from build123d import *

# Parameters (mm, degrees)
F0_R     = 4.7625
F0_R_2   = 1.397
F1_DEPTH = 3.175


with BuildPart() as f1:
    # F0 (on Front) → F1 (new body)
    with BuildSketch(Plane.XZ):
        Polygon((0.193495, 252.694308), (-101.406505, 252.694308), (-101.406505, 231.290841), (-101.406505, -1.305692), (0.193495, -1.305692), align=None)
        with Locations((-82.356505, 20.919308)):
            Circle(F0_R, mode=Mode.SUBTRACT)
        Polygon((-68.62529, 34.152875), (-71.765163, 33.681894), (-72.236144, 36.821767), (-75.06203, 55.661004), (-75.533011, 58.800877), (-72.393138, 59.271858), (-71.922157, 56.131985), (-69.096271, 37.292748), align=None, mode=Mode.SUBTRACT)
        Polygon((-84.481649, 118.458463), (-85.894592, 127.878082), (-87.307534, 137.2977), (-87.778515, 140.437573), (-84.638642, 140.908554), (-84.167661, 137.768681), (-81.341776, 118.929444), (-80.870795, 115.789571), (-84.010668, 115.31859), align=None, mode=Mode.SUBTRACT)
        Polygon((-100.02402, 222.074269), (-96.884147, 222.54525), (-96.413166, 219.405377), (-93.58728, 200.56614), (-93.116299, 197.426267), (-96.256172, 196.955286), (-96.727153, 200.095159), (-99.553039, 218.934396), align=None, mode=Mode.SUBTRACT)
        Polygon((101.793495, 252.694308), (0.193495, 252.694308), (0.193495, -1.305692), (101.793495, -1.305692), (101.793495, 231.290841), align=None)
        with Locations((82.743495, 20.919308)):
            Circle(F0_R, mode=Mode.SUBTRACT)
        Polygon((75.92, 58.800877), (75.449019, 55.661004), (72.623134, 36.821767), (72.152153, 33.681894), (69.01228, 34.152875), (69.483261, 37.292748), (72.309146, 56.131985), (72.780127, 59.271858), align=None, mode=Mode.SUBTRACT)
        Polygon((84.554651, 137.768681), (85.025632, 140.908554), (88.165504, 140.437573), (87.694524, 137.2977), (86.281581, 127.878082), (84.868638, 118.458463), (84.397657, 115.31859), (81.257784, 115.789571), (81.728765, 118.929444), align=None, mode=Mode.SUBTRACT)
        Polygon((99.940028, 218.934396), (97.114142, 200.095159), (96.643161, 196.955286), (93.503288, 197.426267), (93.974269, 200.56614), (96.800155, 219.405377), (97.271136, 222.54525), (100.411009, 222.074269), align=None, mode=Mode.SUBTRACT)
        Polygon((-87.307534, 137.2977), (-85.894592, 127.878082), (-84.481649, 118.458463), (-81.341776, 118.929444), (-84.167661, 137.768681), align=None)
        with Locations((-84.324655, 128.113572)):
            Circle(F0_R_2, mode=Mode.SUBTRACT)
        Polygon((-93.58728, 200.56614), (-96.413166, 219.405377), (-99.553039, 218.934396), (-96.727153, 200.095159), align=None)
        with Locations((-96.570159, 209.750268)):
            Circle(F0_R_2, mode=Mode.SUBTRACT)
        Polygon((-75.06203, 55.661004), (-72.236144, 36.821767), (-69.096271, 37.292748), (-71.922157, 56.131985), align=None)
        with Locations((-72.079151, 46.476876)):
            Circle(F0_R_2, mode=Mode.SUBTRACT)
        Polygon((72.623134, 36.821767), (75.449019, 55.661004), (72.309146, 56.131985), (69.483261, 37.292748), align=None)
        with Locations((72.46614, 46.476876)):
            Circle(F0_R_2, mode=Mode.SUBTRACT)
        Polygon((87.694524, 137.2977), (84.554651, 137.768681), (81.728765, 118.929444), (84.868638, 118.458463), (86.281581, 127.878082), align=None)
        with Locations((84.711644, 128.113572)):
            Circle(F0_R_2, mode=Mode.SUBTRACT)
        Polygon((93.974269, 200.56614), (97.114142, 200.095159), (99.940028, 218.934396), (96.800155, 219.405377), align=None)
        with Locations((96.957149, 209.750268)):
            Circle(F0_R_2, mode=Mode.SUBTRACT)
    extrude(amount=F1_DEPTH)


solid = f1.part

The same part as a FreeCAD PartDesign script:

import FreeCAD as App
import Part
import Sketcher
from FreeCAD import Vector
Q = App.Units.Quantity


def add_polygon(sketch, points):
    """Adds a closed chain of lines whose ends are joined by coincident constraints."""
    first, n = sketch.GeometryCount, len(points)
    for a, b in zip(points, points[1:] + points[:1]):
        sketch.addGeometry(Part.LineSegment(App.Vector(*a, 0), App.Vector(*b, 0)), False)
    for i in range(n):
        sketch.addConstraint(Sketcher.Constraint("Coincident", first + i, 2, first + (i + 1) % n, 1))

doc = App.newDocument("Part")
body = doc.addObject("PartDesign::Body", "Body")

# Sketch on XZ plane
sketch1 = body.newObject("Sketcher::SketchObject", "Sketch")
sketch1.AttachmentSupport = (doc.getObject("XZ_Plane"), [""])
sketch1.MapMode = "FlatFace"
add_polygon(sketch1, [(-101.4, 252.7), (-101.4, -1.3), (101.8, -1.3), (101.8, 252.7)])  # lines 0-3
sketch1.addGeometry(Part.Circle(Vector(-82.4, 20.9, 0), Vector(0, 0, 1), 4.8), False)  # 4
add_polygon(sketch1, [(-69.1, 37.3), (-68.6, 34.2), (-71.8, 33.7), (-72.2, 36.8)])  # lines 5-8
sketch1.addGeometry(Part.Circle(Vector(-72.1, 46.5, 0), Vector(0, 0, 1), 1.4), False)  # 9
add_polygon(sketch1, [(-72.4, 59.3), (-71.9, 56.1), (-75.1, 55.7), (-75.5, 58.8)])  # lines 10-13
add_polygon(sketch1, [(-84, 115.3), (-84.5, 118.5), (-81.3, 118.9), (-80.9, 115.8)])  # lines 14-17
add_polygon(sketch1, [(69, 34.2), (69.5, 37.3), (72.6, 36.8), (72.2, 33.7)])  # lines 18-21
sketch1.addGeometry(Part.Circle(Vector(82.7, 20.9, 0), Vector(0, 0, 1), 4.8), False)  # 22
sketch1.addGeometry(Part.Circle(Vector(72.5, 46.5, 0), Vector(0, 0, 1), 1.4), False)  # 23
add_polygon(sketch1, [(72.8, 59.3), (75.9, 58.8), (75.4, 55.7), (72.3, 56.1)])  # lines 24-27
add_polygon(sketch1, [(81.3, 115.8), (81.7, 118.9), (84.9, 118.5), (84.4, 115.3)])  # lines 28-31
sketch1.addGeometry(Part.Circle(Vector(-84.3, 128.1, 0), Vector(0, 0, 1), 1.4), False)  # 32
add_polygon(sketch1, [(-87.3, 137.3), (-87.8, 140.4), (-84.6, 140.9), (-84.2, 137.8)])  # lines 33-36
add_polygon(sketch1, [(-96.3, 197), (-96.7, 200.1), (-93.6, 200.6), (-93.1, 197.4)])  # lines 37-40
sketch1.addGeometry(Part.Circle(Vector(-96.6, 209.8, 0), Vector(0, 0, 1), 1.4), False)  # 41
add_polygon(sketch1, [(-99.6, 218.9), (-100, 222.1), (-96.9, 222.5), (-96.4, 219.4)])  # lines 42-45
sketch1.addGeometry(Part.Circle(Vector(84.7, 128.1, 0), Vector(0, 0, 1), 1.4), False)  # 46
add_polygon(sketch1, [(84.6, 137.8), (85, 140.9), (88.2, 140.4), (87.7, 137.3)])  # lines 47-50
add_polygon(sketch1, [(97.1, 200.1), (96.6, 197), (93.5, 197.4), (94, 200.6)])  # lines 51-54
sketch1.addGeometry(Part.Circle(Vector(97, 209.8, 0), Vector(0, 0, 1), 1.4), False)  # 55
add_polygon(sketch1, [(100.4, 222.1), (99.9, 218.9), (96.8, 219.4), (97.3, 222.5)])  # lines 56-59
sketch1.addConstraint([
    Sketcher.Constraint("Vertical", 0),
    Sketcher.Constraint("Horizontal", 1),
    Sketcher.Constraint("Vertical", 2),
    Sketcher.Constraint("Horizontal", 3),
    Sketcher.Constraint("Equal", 4, 22),
    Sketcher.Constraint("Equal", 9, 23),
    Sketcher.Constraint("Equal", 23, 32),
    Sketcher.Constraint("Equal", 32, 41),
    Sketcher.Constraint("Equal", 41, 46),
    Sketcher.Constraint("Equal", 46, 55),
    Sketcher.Constraint("Perpendicular", 5, 6),
    Sketcher.Constraint("Perpendicular", 6, 7),
    Sketcher.Constraint("Perpendicular", 7, 8),
    Sketcher.Constraint("Perpendicular", 8, 10),
    Sketcher.Constraint("Perpendicular", 10, 11),
    Sketcher.Constraint("Perpendicular", 11, 12),
    Sketcher.Constraint("Perpendicular", 12, 13),
    Sketcher.Constraint("Perpendicular", 13, 14),
    Sketcher.Constraint("Perpendicular", 14, 15),
    Sketcher.Constraint("Perpendicular", 15, 16),
    Sketcher.Constraint("Perpendicular", 16, 17),
    Sketcher.Constraint("Perpendicular", 18, 19),
    Sketcher.Constraint("Perpendicular", 19, 20),
    Sketcher.Constraint("Perpendicular", 20, 21),
    Sketcher.Constraint("Parallel", 21, 24),
    Sketcher.Constraint("Perpendicular", 24, 25),
    Sketcher.Constraint("Perpendicular", 25, 26),
    Sketcher.Constraint("Perpendicular", 26, 27),
    Sketcher.Constraint("Parallel", 27, 28),
    Sketcher.Constraint("Perpendicular", 28, 29),
    Sketcher.Constraint("Perpendicular", 29, 30),
    Sketcher.Constraint("Perpendicular", 30, 31),
    Sketcher.Constraint("Perpendicular", 17, 33),
    Sketcher.Constraint("Perpendicular", 33, 34),
    Sketcher.Constraint("Perpendicular", 34, 35),
    Sketcher.Constraint("Perpendicular", 35, 36),
    Sketcher.Constraint("Perpendicular", 36, 37),
    Sketcher.Constraint("Perpendicular", 37, 38),
    Sketcher.Constraint("Perpendicular", 38, 39),
    Sketcher.Constraint("Perpendicular", 39, 40),
    Sketcher.Constraint("Perpendicular", 40, 42),
    Sketcher.Constraint("Perpendicular", 42, 43),
    Sketcher.Constraint("Perpendicular", 43, 44),
    Sketcher.Constraint("Perpendicular", 44, 45),
    Sketcher.Constraint("Perpendicular", 31, 47),
    Sketcher.Constraint("Perpendicular", 47, 48),
    Sketcher.Constraint("Perpendicular", 48, 49),
    Sketcher.Constraint("Perpendicular", 49, 50),
    Sketcher.Constraint("Perpendicular", 50, 51),
    Sketcher.Constraint("Perpendicular", 51, 52),
    Sketcher.Constraint("Perpendicular", 52, 53),
    Sketcher.Constraint("Perpendicular", 53, 54),
    Sketcher.Constraint("Perpendicular", 54, 56),
    Sketcher.Constraint("Perpendicular", 56, 57),
    Sketcher.Constraint("Perpendicular", 57, 58),
    Sketcher.Constraint("Perpendicular", 58, 59),
    Sketcher.Constraint("Horizontal", 4, 3, 22, 3),
    Sketcher.Constraint("Horizontal", 9, 3, 23, 3),
    Sketcher.Constraint("Horizontal", 32, 3, 46, 3),
    Sketcher.Constraint("Horizontal", 41, 3, 55, 3),
    Sketcher.Constraint("Horizontal", 8, 2, 18, 2),
    Sketcher.Constraint("Horizontal", 7, 2, 19, 2),
    Sketcher.Constraint("Horizontal", 6, 2, 20, 2),
    Sketcher.Constraint("Horizontal", 12, 2, 24, 2),
    Sketcher.Constraint("Horizontal", 11, 2, 25, 2),
    Sketcher.Constraint("Horizontal", 10, 2, 26, 2),
    Sketcher.Constraint("Horizontal", 15, 2, 28, 2),
    Sketcher.Constraint("Horizontal", 14, 2, 29, 2),
    Sketcher.Constraint("Horizontal", 17, 2, 30, 2),
    Sketcher.Constraint("Horizontal", 34, 2, 47, 2),
    Sketcher.Constraint("Horizontal", 33, 2, 48, 2),
    Sketcher.Constraint("Horizontal", 36, 2, 49, 2),
    Sketcher.Constraint("Horizontal", 40, 2, 51, 2),
    Sketcher.Constraint("Horizontal", 39, 2, 52, 2),
    Sketcher.Constraint("Horizontal", 38, 2, 53, 2),
    Sketcher.Constraint("Horizontal", 45, 2, 56, 2),
    Sketcher.Constraint("Horizontal", 44, 2, 57, 2),
    Sketcher.Constraint("Horizontal", 43, 2, 58, 2),
    Sketcher.Constraint("Equal", 5, 6),
    Sketcher.Constraint("Equal", 8, 10),
    Sketcher.Constraint("Equal", 10, 11),
    Sketcher.Constraint("Equal", 13, 14),
    Sketcher.Constraint("Equal", 14, 15),
    Sketcher.Constraint("Equal", 17, 18),
    Sketcher.Constraint("Equal", 31, 33),
    Sketcher.Constraint("Equal", 33, 34),
    Sketcher.Constraint("Equal", 36, 37),
    Sketcher.Constraint("Equal", 37, 38),
    Sketcher.Constraint("Equal", 40, 42),
    Sketcher.Constraint("Equal", 42, 43),
    Sketcher.Constraint("Diameter", 9, Q("0.11 in")),
    Sketcher.Constraint("DistanceX", 1, 1, 1, 2, Q("8 in")),
    Sketcher.Constraint("DistanceY", 0, 2, 0, 1, Q("10 in")),
    Sketcher.Constraint("Diameter", 4, Q("0.375 in")),
    Sketcher.Constraint("DistanceX", 4, 3, 22, 3, Q("6.5 in")),
    Sketcher.Constraint("DistanceX", 0, 2, 4, 3, Q("0.75 in")),
    Sketcher.Constraint("Distance", 5, Q("0.125 in")),
    Sketcher.Constraint("DistanceY", 0, 2, 4, 3, Q("0.875 in")),
    Sketcher.Constraint("DistanceX", 6, 2, -1, 1, Q("2.8254001 in")),
    Sketcher.Constraint("DistanceX", -1, 1, 24, 2, Q("75.92 mm")),
    Sketcher.Constraint("DistanceY", -1, 1, 36, 2, Q("137.2977 mm")),
    Sketcher.Constraint("DistanceX", 39, 2, -1, 1, Q("93.116299 mm")),
    Sketcher.Constraint("DistanceX", 41, 3, 23, 3, Q("169.036299 mm")),
    Sketcher.Constraint("DistanceX", 32, 3, 46, 3, Q("169.036299 mm")),
    Sketcher.Constraint("DistanceY", 5, 2, 9, 3, Q("12.324001 mm")),
    Sketcher.Constraint("DistanceY", 9, 3, 12, 2, Q("12.324001 mm")),
    Sketcher.Constraint("DistanceY", 16, 2, 32, 3, Q("12.324001 mm")),
    Sketcher.Constraint("DistanceY", 32, 3, 33, 2, Q("12.324001 mm")),
    Sketcher.Constraint("DistanceY", 39, 2, 41, 3, Q("12.324001 mm")),
    Sketcher.Constraint("DistanceY", 41, 3, 42, 2, Q("12.324001 mm")),
    Sketcher.Constraint("DistanceY", -1, 1, 4, 3, Q("20.919308 mm")),
    Sketcher.Constraint("DistanceX", 9, 3, -1, 1, Q("72.079151 mm")),
    Sketcher.Constraint("DistanceX", -1, 1, 23, 3, Q("72.46614 mm")),
    Sketcher.Constraint("DistanceY", -1, 1, 32, 3, Q("128.113572 mm")),
    Sketcher.Constraint("DistanceY", -1, 1, 41, 3, Q("209.750268 mm")),
    Sketcher.Constraint("DistanceX", -1, 1, 55, 3, Q("96.957149 mm")),
    Sketcher.Constraint("DistanceY", -1, 1, 8, 2, Q("37.292748 mm")),
    Sketcher.Constraint("DistanceX", 11, 2, -1, 1, Q("75.06203 mm")),
    Sketcher.Constraint("DistanceX", 14, 2, -1, 1, Q("84.481649 mm")),
    Sketcher.Constraint("DistanceX", -1, 1, 18, 2, Q("69.483261 mm")),
    Sketcher.Constraint("DistanceX", -1, 1, 29, 2, Q("84.868638 mm")),
    Sketcher.Constraint("DistanceX", 35, 2, -1, 1, Q("84.167661 mm")),
    Sketcher.Constraint("DistanceX", 42, 2, -1, 1, Q("100.02402 mm")),
    Sketcher.Constraint("DistanceX", -1, 1, 47, 2, Q("85.025632 mm")),
    Sketcher.Constraint("DistanceX", -1, 1, 51, 2, Q("96.643161 mm")),
    Sketcher.Constraint("DistanceX", -1, 1, 56, 2, Q("99.940028 mm")),
    Sketcher.Constraint("DistanceX", 32, 3, 4, 3, Q("1.96815 mm")),
    Sketcher.Constraint("DistanceX", 4, 3, 6, 2, Q("10.591342 mm")),
])
pad1 = body.newObject("PartDesign::Pad", "Pad")
pad1.Profile = sketch1
pad1.Length = Q("0.125 in")

doc.recompute()
